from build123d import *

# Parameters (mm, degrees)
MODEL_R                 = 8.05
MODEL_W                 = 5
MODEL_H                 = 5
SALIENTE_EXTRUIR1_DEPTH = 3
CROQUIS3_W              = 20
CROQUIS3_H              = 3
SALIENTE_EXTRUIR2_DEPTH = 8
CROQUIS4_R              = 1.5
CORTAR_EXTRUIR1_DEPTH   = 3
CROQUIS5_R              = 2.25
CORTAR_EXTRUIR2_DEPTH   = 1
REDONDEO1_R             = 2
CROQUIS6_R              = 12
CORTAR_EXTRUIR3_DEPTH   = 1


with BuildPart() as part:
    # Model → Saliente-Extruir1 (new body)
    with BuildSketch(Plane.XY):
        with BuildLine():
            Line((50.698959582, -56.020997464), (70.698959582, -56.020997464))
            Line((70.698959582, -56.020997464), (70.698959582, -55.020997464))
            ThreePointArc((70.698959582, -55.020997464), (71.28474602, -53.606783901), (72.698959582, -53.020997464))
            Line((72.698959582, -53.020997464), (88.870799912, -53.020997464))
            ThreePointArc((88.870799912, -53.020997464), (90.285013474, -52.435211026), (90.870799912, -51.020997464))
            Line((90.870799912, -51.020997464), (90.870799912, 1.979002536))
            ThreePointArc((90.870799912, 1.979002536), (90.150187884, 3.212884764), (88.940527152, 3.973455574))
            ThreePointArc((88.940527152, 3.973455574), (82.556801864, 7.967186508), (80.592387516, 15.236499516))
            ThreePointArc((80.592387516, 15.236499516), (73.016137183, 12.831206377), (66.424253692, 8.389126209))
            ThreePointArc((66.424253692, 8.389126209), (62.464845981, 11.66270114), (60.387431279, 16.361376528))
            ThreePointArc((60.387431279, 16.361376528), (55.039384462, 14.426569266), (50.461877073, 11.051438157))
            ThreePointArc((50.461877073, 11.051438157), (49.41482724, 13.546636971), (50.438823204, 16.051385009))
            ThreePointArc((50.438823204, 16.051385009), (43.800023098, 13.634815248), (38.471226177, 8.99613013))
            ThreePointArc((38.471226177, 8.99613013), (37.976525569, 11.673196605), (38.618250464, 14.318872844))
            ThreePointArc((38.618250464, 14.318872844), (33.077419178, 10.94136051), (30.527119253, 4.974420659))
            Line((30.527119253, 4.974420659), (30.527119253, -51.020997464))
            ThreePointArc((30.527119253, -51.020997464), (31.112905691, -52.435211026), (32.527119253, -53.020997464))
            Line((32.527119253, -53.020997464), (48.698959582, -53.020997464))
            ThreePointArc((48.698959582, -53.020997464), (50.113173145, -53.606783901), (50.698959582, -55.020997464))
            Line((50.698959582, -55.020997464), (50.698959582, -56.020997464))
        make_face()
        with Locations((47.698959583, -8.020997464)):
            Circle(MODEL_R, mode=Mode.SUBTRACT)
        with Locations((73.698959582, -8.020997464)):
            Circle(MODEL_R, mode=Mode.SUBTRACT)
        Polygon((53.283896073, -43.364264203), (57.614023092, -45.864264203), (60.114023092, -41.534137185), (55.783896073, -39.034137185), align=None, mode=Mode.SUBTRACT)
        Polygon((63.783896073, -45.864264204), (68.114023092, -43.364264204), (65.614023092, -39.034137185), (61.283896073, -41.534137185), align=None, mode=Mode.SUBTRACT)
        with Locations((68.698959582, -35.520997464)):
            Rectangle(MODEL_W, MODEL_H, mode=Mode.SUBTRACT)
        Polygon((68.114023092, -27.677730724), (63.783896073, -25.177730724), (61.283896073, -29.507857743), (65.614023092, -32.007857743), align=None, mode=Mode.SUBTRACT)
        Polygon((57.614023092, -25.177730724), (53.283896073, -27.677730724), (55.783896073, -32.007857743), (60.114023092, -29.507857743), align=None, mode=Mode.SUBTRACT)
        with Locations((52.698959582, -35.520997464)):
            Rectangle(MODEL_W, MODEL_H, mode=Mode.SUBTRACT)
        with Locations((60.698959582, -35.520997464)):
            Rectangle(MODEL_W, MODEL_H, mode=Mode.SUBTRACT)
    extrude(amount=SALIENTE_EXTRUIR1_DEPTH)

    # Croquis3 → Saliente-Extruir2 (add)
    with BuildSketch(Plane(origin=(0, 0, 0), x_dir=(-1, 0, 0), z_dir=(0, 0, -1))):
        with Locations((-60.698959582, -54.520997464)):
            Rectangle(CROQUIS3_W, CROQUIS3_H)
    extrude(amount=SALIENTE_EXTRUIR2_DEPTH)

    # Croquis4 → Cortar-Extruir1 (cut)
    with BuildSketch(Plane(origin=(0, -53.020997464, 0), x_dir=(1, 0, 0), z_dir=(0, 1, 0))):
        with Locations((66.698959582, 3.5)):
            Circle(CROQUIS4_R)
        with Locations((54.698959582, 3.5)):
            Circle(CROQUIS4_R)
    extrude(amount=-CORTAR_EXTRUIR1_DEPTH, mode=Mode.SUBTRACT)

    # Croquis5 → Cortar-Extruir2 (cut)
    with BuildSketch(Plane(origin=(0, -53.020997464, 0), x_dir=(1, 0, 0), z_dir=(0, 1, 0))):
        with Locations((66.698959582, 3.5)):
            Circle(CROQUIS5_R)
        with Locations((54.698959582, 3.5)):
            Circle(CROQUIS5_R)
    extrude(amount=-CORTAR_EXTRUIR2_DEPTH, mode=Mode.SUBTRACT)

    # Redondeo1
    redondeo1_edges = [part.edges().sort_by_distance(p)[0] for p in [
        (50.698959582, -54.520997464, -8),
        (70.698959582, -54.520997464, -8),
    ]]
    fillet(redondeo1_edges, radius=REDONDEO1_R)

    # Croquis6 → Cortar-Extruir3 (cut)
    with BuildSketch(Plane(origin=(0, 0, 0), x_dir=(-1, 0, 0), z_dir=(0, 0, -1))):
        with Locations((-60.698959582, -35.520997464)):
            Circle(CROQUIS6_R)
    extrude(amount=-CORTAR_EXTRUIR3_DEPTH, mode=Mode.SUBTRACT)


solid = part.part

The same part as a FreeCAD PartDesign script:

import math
import FreeCAD as App
import Part
import Sketcher
Q = App.Units.Quantity


def edges_at(feature, points):
    """Names of the edges that pass closest to the given points."""
    edges = feature.Shape.Edges
    near = lambda p: min(range(len(edges)), key=lambda i: edges[i].distToShape(Part.Vertex(*p))[0])
    return sorted({f"Edge{near(p) + 1}" for p in points})


def add_polygon(sketch, points):
    """Adds a closed chain of lines whose ends are joined by coincident constraints."""
    first, n = sketch.GeometryCount, len(points)
    for a, b in zip(points, points[1:] + points[:1]):
        sketch.addGeometry(Part.LineSegment(App.Vector(*a, 0), App.Vector(*b, 0)), False)
    for i in range(n):
        sketch.addConstraint(Sketcher.Constraint("Coincident", first + i, 2, first + (i + 1) % n, 1))

doc = App.newDocument("Part")
params = doc.addObject("Spreadsheet::Sheet", "Params")
for row, (alias, value) in enumerate([
    ("sketch1_radius", "2 mm"),
    ("sketch1_radius2", "3 mm"),
    ("sketch1_diameter", "16.1 mm"),
    ("sketch1_width", "20 mm"),
    ("sketch1_width2", "5 mm"),
    ("pad1_length", "3 mm"),
    ("sketch2_width", "20 mm"),
    ("sketch2_height", "3 mm"),
    ("pad2_length", "8 mm"),
    ("sketch3_diameter", "3 mm"),
    ("pocket1_length", "3 mm"),
    ("sketch4_diameter", "4.5 mm"),
    ("pocket2_length", "1 mm"),
    ("fillet_radius", "2 mm"),
    ("sketch5_diameter", "24 mm"),
    ("pocket3_length", "1 mm"),
], start=1):
    params.set(f"A{row}", alias)
    params.set(f"B{row}", "=" + value)
    params.setAlias(f"B{row}", alias)

body = doc.addObject("PartDesign::Body", "Body")

# Sketch on XY plane
sketch1 = body.newObject("Sketcher::SketchObject", "Sketch")
sketch1.AttachmentSupport = (doc.getObject("XY_Plane"), [""])
sketch1.MapMode = "FlatFace"
sketch1.addGeometry(Part.LineSegment(App.Vector(50.69896, -56.020997, 0), App.Vector(70.69896, -56.020997, 0)), False)  # 0
sketch1.addGeometry(Part.LineSegment(App.Vector(70.69896, -56.020997, 0), App.Vector(70.69896, -55.020997, 0)), False)  # 1
sketch1.addGeometry(Part.ArcOfCircle(Part.Circle(App.Vector(72.69896, -55.020997, 0), App.Vector(0, 0, 1), 2), math.radians(90), math.radians(180)), False)  # 2
sketch1.addGeometry(Part.LineSegment(App.Vector(72.69896, -53.020997, 0), App.Vector(88.8708, -53.020997, 0)), False)  # 3
sketch1.addGeometry(Part.ArcOfCircle(Part.Circle(App.Vector(88.8708, -51.020997, 0), App.Vector(0, 0, 1), 2), math.radians(-90), math.radians(0)), False)  # 4
sketch1.addGeometry(Part.LineSegment(App.Vector(90.8708, -51.020997, 0), App.Vector(90.8708, 1.979003, 0)), False)  # 5
sketch1.addGeometry(Part.ArcOfCircle(Part.Circle(App.Vector(87.994466, 1.126533, 0), App.Vector(0, 0, 1), 3), math.radians(16.508438), math.radians(71.617836)), False)  # 6
sketch1.addGeometry(Part.ArcOfCircle(Part.Circle(App.Vector(90.83787, 14.105094, 0), App.Vector(0, 0, 1), 10.307764), math.radians(173.698375), math.radians(259.393122)), False)  # 7
sketch1.addGeometry(Part.ArcOfCircle(Part.Circle(App.Vector(85.170016, -12.316798, 0), App.Vector(0, 0, 1), 27.930966), math.radians(99.432804), math.radians(132.15559)), False)  # 8
sketch1.addGeometry(Part.ArcOfCircle(Part.Circle(App.Vector(71.378093, 18.412074, 0), App.Vector(0, 0, 1), 11.18034), math.radians(-169.430975), math.radians(-116.300872)), False)  # 9
sketch1.addGeometry(Part.ArcOfCircle(Part.Circle(App.Vector(64.379976, -3.033247, 0), App.Vector(0, 0, 1), 19.801309), math.radians(101.632314), math.radians(134.659156)), False)  # 10
sketch1.addGeometry(Part.ArcOfCircle(Part.Circle(App.Vector(52.950324, 13.562939, 0), App.Vector(0, 0, 1), 3.535534), math.radians(135.264179), math.radians(225.264179)), False)  # 11
sketch1.addGeometry(Part.ArcOfCircle(Part.Circle(App.Vector(53.626856, -3.034119, 0), App.Vector(0, 0, 1), 19.349935), math.radians(99.483105), math.radians(141.558127)), False)  # 12
sketch1.addGeometry(Part.ArcOfCircle(Part.Circle(App.Vector(44.493242, 11.493192, 0), App.Vector(0, 0, 1), 6.519202), math.radians(154.313956), math.radians(202.521611)), False)  # 13
sketch1.addGeometry(Part.ArcOfCircle(Part.Circle(App.Vector(41.124657, 3.973456, 0), App.Vector(0, 0, 1), 10.644704), math.radians(103.618763), math.radians(174.604272)), False)  # 14
sketch1.addGeometry(Part.LineSegment(App.Vector(30.527119, 4.974421, 0), App.Vector(30.527119, -51.020997, 0)), False)  # 15
sketch1.addGeometry(Part.ArcOfCircle(Part.Circle(App.Vector(32.527119, -51.020997, 0), App.Vector(0, 0, 1), 2), math.radians(-180), math.radians(-90)), False)  # 16
sketch1.addGeometry(Part.LineSegment(App.Vector(32.527119, -53.020997, 0), App.Vector(48.69896, -53.020997, 0)), False)  # 17
sketch1.addGeometry(Part.ArcOfCircle(Part.Circle(App.Vector(48.69896, -55.020997, 0), App.Vector(0, 0, 1), 2), math.radians(0), math.radians(90)), False)  # 18
sketch1.addGeometry(Part.LineSegment(App.Vector(50.69896, -55.020997, 0), App.Vector(50.69896, -56.020997, 0)), False)  # 19
add_polygon(sketch1, [(57.614023, -45.864264), (53.283896, -43.364264), (55.783896, -39.034137), (60.114023, -41.534137)])  # lines 20-23
add_polygon(sketch1, [(55.19896, -38.020997), (50.19896, -38.020997), (50.19896, -33.020997), (55.19896, -33.020997)])  # lines 24-27
add_polygon(sketch1, [(63.19896, -38.020997), (58.19896, -38.020997), (58.19896, -33.020997), (63.19896, -33.020997)])  # lines 28-31
add_polygon(sketch1, [(53.283896, -27.677731), (57.614023, -25.177731), (60.114023, -29.507858), (55.783896, -32.007858)])  # lines 32-35
add_polygon(sketch1, [(68.114023, -43.364264), (63.783896, -45.864264), (61.283896, -41.534137), (65.614023, -39.034137)])  # lines 36-39
add_polygon(sketch1, [(71.19896, -38.020997), (66.19896, -38.020997), (66.19896, -33.020997), (71.19896, -33.020997)])  # lines 40-43
add_polygon(sketch1, [(63.783896, -25.177731), (68.114023, -27.677731), (65.614023, -32.007858), (61.283896, -29.507858)])  # lines 44-47
sketch1.addGeometry(Part.Circle(App.Vector(47.69896, -8.020997, 0), App.Vector(0, 0, 1), 8.05), False)  # 48
sketch1.addGeometry(Part.Circle(App.Vector(73.69896, -8.020997, 0), App.Vector(0, 0, 1), 8.05), False)  # 49
sketch1.addConstraint([
    Sketcher.Constraint("Coincident", 0, 2, 1, 1),
    Sketcher.Constraint("Tangent", 1, 2, 2, 2),
    Sketcher.Constraint("Tangent", 2, 1, 3, 1),
    Sketcher.Constraint("Tangent", 3, 2, 4, 1),
    Sketcher.Constraint("Tangent", 4, 2, 5, 1),
    Sketcher.Constraint("Coincident", 5, 2, 6, 1),
    Sketcher.Constraint("Coincident", 6, 2, 7, 2),
    Sketcher.Constraint("Coincident", 7, 1, 8, 1),
    Sketcher.Constraint("Coincident", 8, 2, 9, 2),
    Sketcher.Constraint("Coincident", 9, 1, 10, 1),
    Sketcher.Constraint("Coincident", 10, 2, 11, 2),
    Sketcher.Constraint("Coincident", 11, 1, 12, 1),
    Sketcher.Constraint("Coincident", 12, 2, 13, 2),
    Sketcher.Constraint("Coincident", 13, 1, 14, 1),
    Sketcher.Constraint("Coincident", 14, 2, 15, 1),
    Sketcher.Constraint("Tangent", 15, 2, 16, 1),
    Sketcher.Constraint("Tangent", 16, 2, 17, 1),
    Sketcher.Constraint("Tangent", 17, 2, 18, 2),
    Sketcher.Constraint("Tangent", 18, 1, 19, 1),
    Sketcher.Constraint("Coincident", 19, 2, 0, 1),
    Sketcher.Constraint("Horizontal", 0),
    Sketcher.Constraint("Vertical", 1),
    Sketcher.Constraint("Horizontal", 3),
    Sketcher.Constraint("Vertical", 5),
    Sketcher.Constraint("Vertical", 15),
    Sketcher.Constraint("Horizontal", 17),
    Sketcher.Constraint("Vertical", 19),
    Sketcher.Constraint("Horizontal", 24),
    Sketcher.Constraint("Vertical", 25),
    Sketcher.Constraint("Horizontal", 26),
    Sketcher.Constraint("Vertical", 27),
    Sketcher.Constraint("Horizontal", 28),
    Sketcher.Constraint("Vertical", 29),
    Sketcher.Constraint("Horizontal", 30),
    Sketcher.Constraint("Vertical", 31),
    Sketcher.Constraint("Horizontal", 40),
    Sketcher.Constraint("Vertical", 41),
    Sketcher.Constraint("Horizontal", 42),
    Sketcher.Constraint("Vertical", 43),
    Sketcher.Constraint("Equal", 2, 4),
    Sketcher.Constraint("Equal", 4, 16),
    Sketcher.Constraint("Equal", 16, 18),
    Sketcher.Constraint("Equal", 48, 49),
    Sketcher.Constraint("Perpendicular", 20, 21),
    Sketcher.Constraint("Perpendicular", 21, 22),
    Sketcher.Constraint("Perpendicular", 22, 23),
    Sketcher.Constraint("Perpendicular", 32, 33),
    Sketcher.Constraint("Perpendicular", 33, 34),
    Sketcher.Constraint("Perpendicular", 34, 35),
    Sketcher.Constraint("Perpendicular", 35, 36),
    Sketcher.Constraint("Perpendicular", 36, 37),
    Sketcher.Constraint("Perpendicular", 37, 38),
    Sketcher.Constraint("Perpendicular", 38, 39),
    Sketcher.Constraint("Perpendicular", 23, 44),
    Sketcher.Constraint("Perpendicular", 44, 45),
    Sketcher.Constraint("Perpendicular", 45, 46),
    Sketcher.Constraint("Perpendicular", 46, 47),
    Sketcher.Constraint("Horizontal", 4, 3, 16, 3),
    Sketcher.Constraint("Horizontal", 48, 3, 49, 3),
    Sketcher.Constraint("Horizontal", 14, 3, 6, 2),
    Sketcher.Constraint("Horizontal", 27, 2, 28, 2),
    Sketcher.Constraint("Horizontal", 26, 2, 29, 2),
    Sketcher.Constraint("Horizontal", 23, 2, 36, 2),
    Sketcher.Constraint("Horizontal", 22, 2, 37, 2),
    Sketcher.Constraint("Horizontal", 21, 2, 38, 2),
    Sketcher.Constraint("Horizontal", 31, 2, 40, 2),
    Sketcher.Constraint("Horizontal", 30, 2, 41, 2),
    Sketcher.Constraint("Horizontal", 35, 2, 44, 2),
    Sketcher.Constraint("Horizontal", 34, 2, 45, 2),
    Sketcher.Constraint("Horizontal", 33, 2, 46, 2),
    Sketcher.Constraint("Vertical", 23, 2, 32, 2),
    Sketcher.Constraint("Vertical", 22, 2, 33, 2),
    Sketcher.Constraint("Vertical", 21, 2, 34, 2),
    Sketcher.Constraint("Vertical", 39, 2, 44, 2),
    Sketcher.Constraint("Vertical", 38, 2, 45, 2),
    Sketcher.Constraint("Equal", 3, 17),
    Sketcher.Constraint("Equal", 26, 28),
    Sketcher.Constraint("Equal", 30, 40),
    Sketcher.Constraint("Equal", 42, 25),
    Sketcher.Constraint("Equal", 20, 21),
    Sketcher.Constraint("Radius", 2, Q("2 mm")),
    Sketcher.Constraint("Radius", 6, Q("3 mm")),
    Sketcher.Constraint("Diameter", 48, Q("16.1 mm")),
    Sketcher.Constraint("DistanceX", 0, 1, 0, 2, Q("20 mm")),
    Sketcher.Constraint("DistanceX", 24, 2, 24, 1, Q("5 mm")),
    Sketcher.Constraint("DistanceY", 1, 1, 1, 2, Q("1 mm")),
    Sketcher.Constraint("DistanceY", 5, 1, 5, 2, Q("53 mm")),
    Sketcher.Constraint("Angle", 20, Q("150 deg")),
    Sketcher.Constraint("Distance", 20, Q("5 mm")),
    Sketcher.Constraint("Radius", 9, Q("11.18034 mm")),
    Sketcher.Constraint("Radius", 10, Q("19.801309 mm")),
    Sketcher.Constraint("Radius", 7, Q("10.307764 mm")),
    Sketcher.Constraint("Radius", 8, Q("27.930966 mm")),
    Sketcher.Constraint("Radius", 11, Q("3.535534 mm")),
    Sketcher.Constraint("Radius", 12, Q("19.349935 mm")),
    Sketcher.Constraint("Radius", 13, Q("6.519202 mm")),
    Sketcher.Constraint("Radius", 14, Q("10.644704 mm")),
    Sketcher.Constraint("DistanceX", 3, 1, 3, 2, Q("16.17184 mm")),
    Sketcher.Constraint("DistanceY", 15, 2, 15, 1, Q("55.995418 mm")),
    Sketcher.Constraint("DistanceX", -1, 1, 4, 3, Q("88.8708 mm")),
    Sketcher.Constraint("DistanceY", 8, 3, -1, 1, Q("12.316798 mm")),
    Sketcher.Constraint("DistanceY", -1, 1, 7, 1, Q("15.2365 mm")),
    Sketcher.Constraint("DistanceX", -1, 1, 7, 3, Q("90.83787 mm")),
    Sketcher.Constraint("DistanceY", -1, 1, 11, 3, Q("13.562939 mm")),
    Sketcher.Constraint("DistanceY", 12, 3, -1, 1, Q("3.034119 mm")),
    Sketcher.Constraint("DistanceX", -1, 1, 48, 3, Q("47.69896 mm")),
    Sketcher.Constraint("DistanceX", -1, 1, 49, 3, Q("73.69896 mm")),
    Sketcher.Constraint("DistanceX", -1, 1, 9, 1, Q("60.387431 mm")),
    Sketcher.Constraint("DistanceY", -1, 1, 10, 2, Q("11.051438 mm")),
    Sketcher.Constraint("DistanceY", -1, 1, 12, 2, Q("8.99613 mm")),
    Sketcher.Constraint("DistanceX", -1, 1, 13, 1, Q("38.61825 mm")),
    Sketcher.Constraint("DistanceY", -1, 1, 14, 2, Q("4.974421 mm")),
    Sketcher.Constraint("DistanceX", -1, 1, 24, 2, Q("50.19896 mm")),
    Sketcher.Constraint("DistanceX", -1, 1, 28, 2, Q("58.19896 mm")),
    Sketcher.Constraint("DistanceY", 32, 2, -1, 1, Q("25.177731 mm")),
    Sketcher.Constraint("DistanceX", -1, 1, 40, 2, Q("66.19896 mm")),
    Sketcher.Constraint("DistanceX", -1, 1, 6, 3, Q("87.994466 mm")),
    Sketcher.Constraint("DistanceY", -1, 1, 7, 3, Q("14.105094 mm")),
    Sketcher.Constraint("DistanceX", -1, 1, 9, 3, Q("71.378093 mm")),
    Sketcher.Constraint("DistanceY", -1, 1, 9, 3, Q("18.412074 mm")),
    Sketcher.Constraint("DistanceX", -1, 1, 10, 3, Q("64.379976 mm")),
    Sketcher.Constraint("DistanceX", -1, 1, 12, 3, Q("53.626856 mm")),
    Sketcher.Constraint("DistanceY", 48, 3, -1, 1, Q("8.020997 mm")),
    Sketcher.Constraint("DistanceX", -1, 1, 20, 2, Q("53.283896 mm")),
    Sketcher.Constraint("DistanceY", 20, 2, -1, 1, Q("43.364264 mm")),
    Sketcher.Constraint("DistanceY", 24, 2, -1, 1, Q("38.020997 mm")),
    Sketcher.Constraint("DistanceX", -1, 1, 36, 2, Q("63.783896 mm")),
])
sketch1.setExpression("Constraints[108]", "Params.sketch1_radius")
sketch1.setExpression("Constraints[109]", "Params.sketch1_radius2")
sketch1.setExpression("Constraints[110]", "Params.sketch1_diameter")
sketch1.setExpression("Constraints[111]", "Params.sketch1_width")
sketch1.setExpression("Constraints[112]", "Params.sketch1_width2")
pad1 = body.newObject("PartDesign::Pad", "Pad")
pad1.Profile = sketch1
pad1.setExpression("Length", "Params.pad1_length")

# Sketch on XY plane
sketch2 = body.newObject("Sketcher::SketchObject", "Sketch001")
sketch2.AttachmentSupport = (doc.getObject("XY_Plane"), [""])
sketch2.MapMode = "FlatFace"
add_polygon(sketch2, [(70.69896, -53.020997), (70.69896, -56.020997), (50.69896, -56.020997), (50.69896, -53.020997)])  # lines 0-3
sketch2.addConstraint([
    Sketcher.Constraint("Vertical", 0),
    Sketcher.Constraint("Horizontal", 1),
    Sketcher.Constraint("Vertical", 2),
    Sketcher.Constraint("Horizontal", 3),
    Sketcher.Constraint("DistanceX", 1, 2, 1, 1, Q("20 mm")),
    Sketcher.Constraint("DistanceY", 0, 2, 0, 1, Q("3 mm")),
    Sketcher.Constraint("DistanceX", -1, 1, 0, 2, Q("70.69896 mm")),
    Sketcher.Constraint("DistanceY", 0, 2, -1, 1, Q("56.020997 mm")),
])
sketch2.setExpression("Constraints[8]", "Params.sketch2_width")
sketch2.setExpression("Constraints[9]", "Params.sketch2_height")
pad2 = body.newObject("PartDesign::Pad", "Pad001")
pad2.Profile = sketch2
pad2.setExpression("Length", "Params.pad2_length")
pad2.Reversed = True

# Sketch on XZ plane
sketch3 = body.newObject("Sketcher::SketchObject", "Sketch002")
sketch3.AttachmentSupport = (doc.getObject("XZ_Plane"), [""])
sketch3.MapMode = "FlatFace"
sketch3.AttachmentOffset = App.Placement(App.Vector(0, 0, 53.020997), App.Rotation())
sketch3.addGeometry([
    Part.Circle(App.Vector(66.69896, -3.5, 0), App.Vector(0, 0, 1), 1.5),
    Part.Circle(App.Vector(54.69896, -3.5, 0), App.Vector(0, 0, 1), 1.5),
], False)
sketch3.addConstraint([
    Sketcher.Constraint("Equal", 0, 1),
    Sketcher.Constraint("Horizontal", 0, 3, 1, 3),
    Sketcher.Constraint("Diameter", 0, Q("3 mm")),
    Sketcher.Constraint("DistanceX", 1, 3, 0, 3, Q("12 mm")),
    Sketcher.Constraint("DistanceY", 0, 3, -1, 1, Q("3.5 mm")),
    Sketcher.Constraint("DistanceX", -1, 1, 0, 3, Q("66.69896 mm")),
])
sketch3.setExpression("Constraints[2]", "Params.sketch3_diameter")
pocket1 = body.newObject("PartDesign::Pocket", "Pocket")
pocket1.Profile = sketch3
pocket1.setExpression("Length", "Params.pocket1_length")
pocket1.Reversed = True

# Sketch on XZ plane
sketch4 = body.newObject("Sketcher::SketchObject", "Sketch003")
sketch4.AttachmentSupport = (doc.getObject("XZ_Plane"), [""])
sketch4.MapMode = "FlatFace"
sketch4.AttachmentOffset = App.Placement(App.Vector(0, 0, 53.020997), App.Rotation())
sketch4.addGeometry([
    Part.Circle(App.Vector(66.69896, -3.5, 0), App.Vector(0, 0, 1), 2.25),
    Part.Circle(App.Vector(54.69896, -3.5, 0), App.Vector(0, 0, 1), 2.25),
], False)
sketch4.addConstraint([
    Sketcher.Constraint("Equal", 0, 1),
    Sketcher.Constraint("Horizontal", 0, 3, 1, 3),
    Sketcher.Constraint("Diameter", 0, Q("4.5 mm")),
    Sketcher.Constraint("DistanceX", 1, 3, 0, 3, Q("12 mm")),
    Sketcher.Constraint("DistanceY", 0, 3, -1, 1, Q("3.5 mm")),
    Sketcher.Constraint("DistanceX", -1, 1, 0, 3, Q("66.69896 mm")),
])
sketch4.setExpression("Constraints[2]", "Params.sketch4_diameter")
pocket2 = body.newObject("PartDesign::Pocket", "Pocket001")
pocket2.Profile = sketch4
pocket2.setExpression("Length", "Params.pocket2_length")
pocket2.Reversed = True
doc.recompute()

fillet = body.newObject("PartDesign::Fillet", "Fillet")
fillet.Base = (pocket2, edges_at(pocket2, [(50.699, -54.521, -8), (70.699, -54.521, -8)]))
fillet.setExpression("Radius", "Params.fillet_radius")

# Sketch on XY plane
sketch5 = body.newObject("Sketcher::SketchObject", "Sketch004")
sketch5.AttachmentSupport = (doc.getObject("XY_Plane"), [""])
sketch5.MapMode = "FlatFace"
sketch5.addGeometry(Part.Circle(App.Vector(60.69896, -35.520997, 0), App.Vector(0, 0, 1), 12), False)
sketch5.addConstraint([
    Sketcher.Constraint("Diameter", 0, Q("24 mm")),
    Sketcher.Constraint("DistanceX", -1, 1, 0, 3, Q("60.69896 mm")),
    Sketcher.Constraint("DistanceY", 0, 3, -1, 1, Q("35.520997 mm")),
])
sketch5.setExpression("Constraints[0]", "Params.sketch5_diameter")
pocket3 = body.newObject("PartDesign::Pocket", "Pocket002")
pocket3.Profile = sketch5
pocket3.setExpression("Length", "Params.pocket3_length")
pocket3.Reversed = True

doc.recompute()
